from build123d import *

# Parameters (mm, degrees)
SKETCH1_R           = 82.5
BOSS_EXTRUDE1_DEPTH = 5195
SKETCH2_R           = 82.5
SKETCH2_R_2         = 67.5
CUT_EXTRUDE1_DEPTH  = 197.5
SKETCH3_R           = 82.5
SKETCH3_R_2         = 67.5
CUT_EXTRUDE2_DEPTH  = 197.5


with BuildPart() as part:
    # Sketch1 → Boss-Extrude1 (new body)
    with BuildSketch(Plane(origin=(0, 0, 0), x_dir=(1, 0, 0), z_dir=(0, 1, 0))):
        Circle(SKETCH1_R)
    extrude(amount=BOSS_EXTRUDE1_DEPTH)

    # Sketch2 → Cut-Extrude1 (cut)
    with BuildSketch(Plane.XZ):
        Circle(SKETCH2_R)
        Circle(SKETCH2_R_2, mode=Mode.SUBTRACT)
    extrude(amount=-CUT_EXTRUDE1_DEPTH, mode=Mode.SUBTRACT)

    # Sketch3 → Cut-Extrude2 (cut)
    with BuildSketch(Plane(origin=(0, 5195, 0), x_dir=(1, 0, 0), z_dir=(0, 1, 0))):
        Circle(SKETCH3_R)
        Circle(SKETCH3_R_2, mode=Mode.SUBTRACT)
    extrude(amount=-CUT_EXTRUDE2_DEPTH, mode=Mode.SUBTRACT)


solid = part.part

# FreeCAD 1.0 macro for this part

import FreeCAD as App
import Part
import Sketcher

doc = App.newDocument("Part")
body = doc.addObject("PartDesign::Body", "Body")

sketch1 = body.newObject("Sketcher::SketchObject", "Sketch")
sketch1.AttachmentSupport = (doc.getObject("XZ_Plane"), [""])
sketch1.MapMode = "FlatFace"
sketch1.addGeometry(Part.Circle(App.Vector(0, 0, 0), App.Vector(0, 0, 1), 82), False)
sketch1.addConstraint([
    Sketcher.Constraint("Coincident", 0, 3, -1, 1),
    Sketcher.Constraint("Diameter", 0, 165.0),
])
pad1 = body.newObject("PartDesign::Pad", "Pad")
pad1.Profile = sketch1
pad1.Length = 5195
pad1.Reversed = True

sketch2 = body.newObject("Sketcher::SketchObject", "Sketch001")
sketch2.AttachmentSupport = (doc.getObject("XZ_Plane"), [""])
sketch2.MapMode = "FlatFace"
sketch2.addGeometry([
    Part.Circle(App.Vector(0, 0, 0), App.Vector(0, 0, 1), 82),
    Part.Circle(App.Vector(0, 0, 0), App.Vector(0, 0, 1), 68),
], False)
sketch2.addConstraint([
    Sketcher.Constraint("Coincident", 0, 3, -1, 1),
    Sketcher.Constraint("Coincident", 1, 3, -1, 1),
    Sketcher.Constraint("Diameter", 0, 165.0),
    Sketcher.Constraint("Diameter", 1, 135.0),
])
pocket1 = body.newObject("PartDesign::Pocket", "Pocket")
pocket1.Profile = sketch2
pocket1.Length = 197.5

sketch3 = body.newObject("Sketcher::SketchObject", "Sketch002")
sketch3.AttachmentSupport = (doc.getObject("XZ_Plane"), [""])
sketch3.MapMode = "FlatFace"
sketch3.AttachmentOffset = App.Placement(App.Vector(0, 0, -5195), App.Rotation())
sketch3.addGeometry([
    Part.Circle(App.Vector(0, 0, 0), App.Vector(0, 0, 1), 82),
    Part.Circle(App.Vector(0, 0, 0), App.Vector(0, 0, 1), 68),
], False)
sketch3.addConstraint([
    Sketcher.Constraint("Coincident", 0, 3, -1, 1),
    Sketcher.Constraint("Coincident", 1, 3, -1, 1),
    Sketcher.Constraint("Diameter", 0, 165.0),
    Sketcher.Constraint("Diameter", 1, 135.0),
])
pocket2 = body.newObject("PartDesign::Pocket", "Pocket001")
pocket2.Profile = sketch3
pocket2.Length = 197.5
pocket2.Reversed = True

doc.recompute()
